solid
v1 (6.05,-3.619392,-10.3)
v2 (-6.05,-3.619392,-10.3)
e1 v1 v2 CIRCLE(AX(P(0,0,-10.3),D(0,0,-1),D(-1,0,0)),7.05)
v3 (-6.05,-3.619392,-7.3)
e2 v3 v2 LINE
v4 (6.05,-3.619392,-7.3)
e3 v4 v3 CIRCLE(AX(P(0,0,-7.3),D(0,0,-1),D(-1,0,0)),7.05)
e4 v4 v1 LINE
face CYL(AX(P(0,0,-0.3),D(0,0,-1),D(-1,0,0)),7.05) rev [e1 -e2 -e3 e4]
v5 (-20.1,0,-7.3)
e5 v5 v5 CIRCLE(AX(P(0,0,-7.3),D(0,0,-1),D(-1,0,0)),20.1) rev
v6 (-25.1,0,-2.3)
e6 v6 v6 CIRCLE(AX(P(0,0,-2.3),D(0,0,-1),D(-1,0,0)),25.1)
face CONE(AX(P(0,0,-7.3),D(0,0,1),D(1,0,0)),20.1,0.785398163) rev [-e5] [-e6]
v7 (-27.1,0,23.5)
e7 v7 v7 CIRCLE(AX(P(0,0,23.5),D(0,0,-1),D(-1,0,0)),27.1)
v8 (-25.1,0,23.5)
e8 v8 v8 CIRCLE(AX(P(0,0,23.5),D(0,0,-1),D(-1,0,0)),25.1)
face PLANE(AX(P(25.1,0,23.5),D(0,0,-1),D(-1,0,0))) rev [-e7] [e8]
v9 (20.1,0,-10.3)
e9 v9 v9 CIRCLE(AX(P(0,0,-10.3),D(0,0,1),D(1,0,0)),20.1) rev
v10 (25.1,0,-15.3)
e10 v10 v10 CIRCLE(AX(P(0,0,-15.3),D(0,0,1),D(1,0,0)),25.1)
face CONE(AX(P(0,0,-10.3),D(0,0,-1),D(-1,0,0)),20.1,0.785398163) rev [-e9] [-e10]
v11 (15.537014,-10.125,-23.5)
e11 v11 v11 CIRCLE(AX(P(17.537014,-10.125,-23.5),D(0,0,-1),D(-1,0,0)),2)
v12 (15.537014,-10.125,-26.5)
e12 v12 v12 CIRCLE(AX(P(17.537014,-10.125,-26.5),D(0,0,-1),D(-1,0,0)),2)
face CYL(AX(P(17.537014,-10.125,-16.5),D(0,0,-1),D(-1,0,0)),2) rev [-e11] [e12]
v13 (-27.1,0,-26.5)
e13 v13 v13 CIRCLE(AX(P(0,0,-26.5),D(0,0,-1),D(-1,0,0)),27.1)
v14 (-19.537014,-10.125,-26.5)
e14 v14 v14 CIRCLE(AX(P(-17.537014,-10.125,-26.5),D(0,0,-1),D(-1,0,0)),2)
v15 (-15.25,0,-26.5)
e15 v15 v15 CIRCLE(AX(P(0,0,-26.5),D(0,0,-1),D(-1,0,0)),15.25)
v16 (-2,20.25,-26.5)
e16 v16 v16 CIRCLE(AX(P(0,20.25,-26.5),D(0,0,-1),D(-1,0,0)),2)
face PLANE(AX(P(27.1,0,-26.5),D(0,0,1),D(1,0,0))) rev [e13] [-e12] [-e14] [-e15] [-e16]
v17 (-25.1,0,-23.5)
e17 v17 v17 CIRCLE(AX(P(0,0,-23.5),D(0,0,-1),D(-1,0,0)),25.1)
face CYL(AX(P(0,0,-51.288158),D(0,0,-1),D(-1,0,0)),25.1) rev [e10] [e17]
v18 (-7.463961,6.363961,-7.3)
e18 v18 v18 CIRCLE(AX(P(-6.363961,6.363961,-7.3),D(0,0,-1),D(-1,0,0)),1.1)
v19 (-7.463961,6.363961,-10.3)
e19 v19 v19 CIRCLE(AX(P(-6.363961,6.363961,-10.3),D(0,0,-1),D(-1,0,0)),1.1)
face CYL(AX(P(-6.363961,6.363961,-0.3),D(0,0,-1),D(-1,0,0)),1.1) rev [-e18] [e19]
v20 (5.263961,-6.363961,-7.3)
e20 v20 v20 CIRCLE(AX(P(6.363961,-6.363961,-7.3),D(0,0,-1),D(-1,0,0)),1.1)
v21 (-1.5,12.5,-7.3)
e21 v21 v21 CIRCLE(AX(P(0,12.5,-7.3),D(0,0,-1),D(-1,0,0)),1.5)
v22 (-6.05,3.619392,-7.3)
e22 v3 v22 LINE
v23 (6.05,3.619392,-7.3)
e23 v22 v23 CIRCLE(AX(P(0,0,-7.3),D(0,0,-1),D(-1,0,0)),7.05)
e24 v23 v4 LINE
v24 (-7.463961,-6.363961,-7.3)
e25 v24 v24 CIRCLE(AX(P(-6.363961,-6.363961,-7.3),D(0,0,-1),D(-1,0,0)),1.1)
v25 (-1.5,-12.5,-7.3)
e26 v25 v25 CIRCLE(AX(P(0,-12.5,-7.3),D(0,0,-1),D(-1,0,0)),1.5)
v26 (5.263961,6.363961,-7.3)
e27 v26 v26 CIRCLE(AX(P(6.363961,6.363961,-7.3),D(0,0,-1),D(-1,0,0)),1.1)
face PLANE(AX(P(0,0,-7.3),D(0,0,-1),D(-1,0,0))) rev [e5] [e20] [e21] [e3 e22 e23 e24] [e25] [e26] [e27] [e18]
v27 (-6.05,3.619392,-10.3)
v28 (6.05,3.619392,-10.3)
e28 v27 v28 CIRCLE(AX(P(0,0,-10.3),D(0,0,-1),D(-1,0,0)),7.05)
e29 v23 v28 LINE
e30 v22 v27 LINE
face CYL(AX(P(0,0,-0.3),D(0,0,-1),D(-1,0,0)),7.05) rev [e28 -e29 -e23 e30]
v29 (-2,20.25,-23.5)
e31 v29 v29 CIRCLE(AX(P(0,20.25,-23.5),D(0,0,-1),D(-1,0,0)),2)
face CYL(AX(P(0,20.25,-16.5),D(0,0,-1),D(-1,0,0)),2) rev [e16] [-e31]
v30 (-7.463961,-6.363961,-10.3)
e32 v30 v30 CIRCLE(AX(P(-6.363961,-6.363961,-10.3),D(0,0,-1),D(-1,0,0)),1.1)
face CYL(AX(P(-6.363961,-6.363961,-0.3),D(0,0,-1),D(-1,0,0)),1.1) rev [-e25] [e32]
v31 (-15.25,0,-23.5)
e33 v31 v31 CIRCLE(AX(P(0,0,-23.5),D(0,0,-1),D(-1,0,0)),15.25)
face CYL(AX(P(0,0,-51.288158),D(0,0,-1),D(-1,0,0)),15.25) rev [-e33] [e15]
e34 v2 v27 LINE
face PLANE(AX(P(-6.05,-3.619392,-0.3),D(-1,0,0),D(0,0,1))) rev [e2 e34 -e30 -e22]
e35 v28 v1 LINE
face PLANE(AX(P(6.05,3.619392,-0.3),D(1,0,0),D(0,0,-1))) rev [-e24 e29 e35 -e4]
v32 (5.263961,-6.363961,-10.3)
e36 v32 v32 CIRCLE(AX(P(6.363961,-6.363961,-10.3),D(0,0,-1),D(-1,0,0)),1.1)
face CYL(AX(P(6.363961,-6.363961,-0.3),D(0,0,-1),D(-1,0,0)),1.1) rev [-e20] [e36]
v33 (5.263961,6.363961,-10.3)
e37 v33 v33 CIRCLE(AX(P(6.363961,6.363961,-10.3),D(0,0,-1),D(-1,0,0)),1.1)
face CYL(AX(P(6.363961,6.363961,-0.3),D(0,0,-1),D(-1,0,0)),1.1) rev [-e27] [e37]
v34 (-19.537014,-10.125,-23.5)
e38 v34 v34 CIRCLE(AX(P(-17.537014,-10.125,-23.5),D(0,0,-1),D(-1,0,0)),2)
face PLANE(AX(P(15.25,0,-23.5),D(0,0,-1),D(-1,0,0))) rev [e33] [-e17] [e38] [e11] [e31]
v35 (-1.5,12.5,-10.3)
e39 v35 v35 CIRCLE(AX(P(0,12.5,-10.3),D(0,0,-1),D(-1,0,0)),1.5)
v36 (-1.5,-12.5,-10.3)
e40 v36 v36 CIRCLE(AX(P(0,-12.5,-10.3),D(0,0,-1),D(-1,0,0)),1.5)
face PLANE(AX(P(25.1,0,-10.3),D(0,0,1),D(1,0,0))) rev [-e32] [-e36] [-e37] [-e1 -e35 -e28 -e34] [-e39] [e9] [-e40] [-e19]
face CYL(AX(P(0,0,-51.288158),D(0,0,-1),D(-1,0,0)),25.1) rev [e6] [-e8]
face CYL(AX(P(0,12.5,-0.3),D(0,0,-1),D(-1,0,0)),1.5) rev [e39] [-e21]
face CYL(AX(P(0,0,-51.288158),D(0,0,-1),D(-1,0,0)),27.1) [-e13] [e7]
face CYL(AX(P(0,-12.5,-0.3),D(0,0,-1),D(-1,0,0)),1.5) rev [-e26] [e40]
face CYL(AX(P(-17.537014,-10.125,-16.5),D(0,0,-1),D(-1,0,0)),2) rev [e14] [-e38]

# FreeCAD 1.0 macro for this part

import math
import FreeCAD as App
import Part
import Sketcher

V = App.Vector
Q = App.Units.Quantity


def edges_at(feature, points):
    """Names of the edges that pass closest to the given points."""
    edges = feature.Shape.Edges
    near = lambda p: min(range(len(edges)), key=lambda i: edges[i].distToShape(Part.Vertex(*p))[0])
    return sorted({f"Edge{near(p) + 1}" for p in points})

doc = App.newDocument("Part")
body = doc.addObject("PartDesign::Body", "Body")

# Sketch on XZ plane
sketch1 = body.newObject("Sketcher::SketchObject", "Sketch")
sketch1.AttachmentSupport = (doc.getObject("XZ_Plane"), [""])
sketch1.MapMode = "FlatFace"
sketch1.addGeometry([
    Part.LineSegment(V(15.2, -26.5, 0), V(15.2, -23.5, 0)),  # 0
    Part.LineSegment(V(15.2, -23.5, 0), V(25.1, -23.5, 0)),  # 1
    Part.LineSegment(V(25.1, -23.5, 0), V(25.1, 23.5, 0)),  # 2
    Part.LineSegment(V(25.1, 23.5, 0), V(27.1, 23.5, 0)),  # 3
    Part.LineSegment(V(27.1, 23.5, 0), V(27.1, -26.5, 0)),  # 4
    Part.LineSegment(V(27.1, -26.5, 0), V(15.2, -26.5, 0)),  # 5
], False)
sketch1.addConstraint([
    Sketcher.Constraint("Coincident", 0, 2, 1, 1),
    Sketcher.Constraint("Coincident", 1, 2, 2, 1),
    Sketcher.Constraint("Coincident", 2, 2, 3, 1),
    Sketcher.Constraint("Coincident", 3, 2, 4, 1),
    Sketcher.Constraint("Coincident", 4, 2, 5, 1),
    Sketcher.Constraint("Coincident", 5, 2, 0, 1),
    Sketcher.Constraint("Vertical", 0),
    Sketcher.Constraint("Horizontal", 1),
    Sketcher.Constraint("Vertical", 2),
    Sketcher.Constraint("Horizontal", 3),
    Sketcher.Constraint("Vertical", 4),
    Sketcher.Constraint("Horizontal", 5),
    Sketcher.Constraint("DistanceX", 3, 1, 3, 2, Q("2 mm")),
    Sketcher.Constraint("DistanceY", 0, 1, 0, 2, Q("3 mm")),
    Sketcher.Constraint("DistanceY", 2, 1, 2, 2, Q("47 mm")),
    Sketcher.Constraint("DistanceX", 1, 1, 1, 2, Q("9.85 mm")),
    Sketcher.Constraint("DistanceY", 0, 2, -1, 1, Q("23.5 mm")),
    Sketcher.Constraint("DistanceX", -1, 1, 1, 2, Q("25.1 mm")),
])
revolution = body.newObject("PartDesign::Revolution", "Revolution")
revolution.Profile = sketch1
revolution.ReferenceAxis = (sketch1, ["V_Axis"])
revolution.Angle = 360

# Sketch on XY plane
sketch2 = body.newObject("Sketcher::SketchObject", "Sketch001")
sketch2.AttachmentSupport = (doc.getObject("XY_Plane"), [""])
sketch2.MapMode = "FlatFace"
sketch2.AttachmentOffset = App.Placement(V(0, 0, -26.5), App.Rotation())
sketch2.addGeometry([
    Part.Circle(V(0, 20.2, 0), V(0, 0, 1), 2),
    Part.Circle(V(-17.5, -10.1, 0), V(0, 0, 1), 2),
    Part.Circle(V(17.5, -10.1, 0), V(0, 0, 1), 2),
], False)
sketch2.addConstraint([
    Sketcher.Constraint("Equal", 0, 1),
    Sketcher.Constraint("Equal", 1, 2),
    Sketcher.Constraint("Symmetric", 1, 3, 2, 3, -2),
    Sketcher.Constraint("PointOnObject", 0, 3, -2),
    Sketcher.Constraint("Diameter", 0, Q("4 mm")),
    Sketcher.Constraint("DistanceY", -1, 1, 0, 3, Q("20.25 mm")),
    Sketcher.Constraint("DistanceY", 1, 3, -1, 1, Q("10.125 mm")),
    Sketcher.Constraint("DistanceX", 1, 3, 2, 3, Q("35.074029 mm")),
])
pocket1 = body.newObject("PartDesign::Pocket", "Pocket")
pocket1.Profile = sketch2
pocket1.Length = 10
pocket1.Reversed = True

# Sketch on XZ plane
sketch3 = body.newObject("Sketcher::SketchObject", "Sketch002")
sketch3.AttachmentSupport = (doc.getObject("XZ_Plane"), [""])
sketch3.MapMode = "FlatFace"
sketch3.addGeometry([
    Part.LineSegment(V(0, -10.3, 0), V(0, -7.3, 0)),
    Part.LineSegment(V(0, -7.3, 0), V(25.1, -7.3, 0)),
    Part.LineSegment(V(25.1, -7.3, 0), V(25.1, -10.3, 0)),
    Part.LineSegment(V(25.1, -10.3, 0), V(0, -10.3, 0)),
], False)
sketch3.addConstraint([
    Sketcher.Constraint("Coincident", 0, 2, 1, 1),
    Sketcher.Constraint("Coincident", 1, 2, 2, 1),
    Sketcher.Constraint("Coincident", 2, 2, 3, 1),
    Sketcher.Constraint("Coincident", 3, 2, 0, 1),
    Sketcher.Constraint("Vertical", 0),
    Sketcher.Constraint("Horizontal", 1),
    Sketcher.Constraint("Vertical", 2),
    Sketcher.Constraint("Horizontal", 3),
    Sketcher.Constraint("PointOnObject", 0, 2, -2),
    Sketcher.Constraint("DistanceY", 0, 1, 0, 2, Q("3 mm")),
    Sketcher.Constraint("DistanceX", 1, 1, 1, 2, Q("25.1 mm")),
    Sketcher.Constraint("DistanceY", 0, 2, -1, 1, Q("7.3 mm")),
])
revolution2 = body.newObject("PartDesign::Revolution", "Revolution001")
revolution2.Profile = sketch3
revolution2.ReferenceAxis = (sketch3, ["V_Axis"])
revolution2.Angle = 360
doc.recompute()

chamfer = body.newObject("PartDesign::Chamfer", "Chamfer")
chamfer.Base = (revolution2, edges_at(revolution2, [(-25.1, 0, -7.3), (-25.1, 0, -10.3)]))
chamfer.Size = 5

# Sketch on XY plane
sketch4 = body.newObject("Sketcher::SketchObject", "Sketch003")
sketch4.AttachmentSupport = (doc.getObject("XY_Plane"), [""])
sketch4.MapMode = "FlatFace"
sketch4.AttachmentOffset = App.Placement(V(0, 0, -10.3), App.Rotation())
sketch4.addGeometry([
    Part.Circle(V(6.4, 6.4, 0), V(0, 0, 1), 1.1),  # 0
    Part.Circle(V(-6.4, 6.4, 0), V(0, 0, 1), 1.1),  # 1
    Part.Circle(V(-6.4, -6.4, 0), V(0, 0, 1), 1.1),  # 2
    Part.Circle(V(6.4, -6.4, 0), V(0, 0, 1), 1.1),  # 3
    Part.Circle(V(0, 12.5, 0), V(0, 0, 1), 1.5),  # 4
    Part.Circle(V(0, -12.5, 0), V(0, 0, 1), 1.5),  # 5
    Part.LineSegment(V(6, 3.6, 0), V(6, -3.6, 0)),  # 6
    Part.ArcOfCircle(Part.Circle(V(0, 0, 0), V(0, 0, 1), 7), math.radians(-149), math.radians(-31)),  # 7
    Part.LineSegment(V(-6, -3.6, 0), V(-6, 3.6, 0)),  # 8
    Part.ArcOfCircle(Part.Circle(V(0, 0, 0), V(0, 0, 1), 7), math.radians(31), math.radians(149)),  # 9
], False)
sketch4.addConstraint([
    Sketcher.Constraint("Coincident", 6, 2, 7, 2),
    Sketcher.Constraint("Coincident", 7, 1, 8, 1),
    Sketcher.Constraint("Coincident", 8, 2, 9, 2),
    Sketcher.Constraint("Coincident", 9, 1, 6, 1),
    Sketcher.Constraint("Vertical", 6),
    Sketcher.Constraint("Vertical", 8),
    Sketcher.Constraint("Coincident", 7, 3, -1, 1),
    Sketcher.Constraint("Coincident", 9, 3, -1, 1),
    Sketcher.Constraint("Equal", 0, 1),
    Sketcher.Constraint("Equal", 1, 2),
    Sketcher.Constraint("Equal", 2, 3),
    Sketcher.Constraint("Equal", 4, 5),
    Sketcher.Constraint("Equal", 7, 9),
    Sketcher.Constraint("Symmetric", 0, 3, 2, 3, -1, 1),
    Sketcher.Constraint("Symmetric", 1, 3, 3, 3, -1, 1),
    Sketcher.Constraint("Symmetric", 4, 3, 5, 3, -1, 1),
    Sketcher.Constraint("Symmetric", 0, 3, 1, 3, -2),
    Sketcher.Constraint("PointOnObject", 4, 3, -2),
    Sketcher.Constraint("Horizontal", 6, 2, 7, 1),
    Sketcher.Constraint("Diameter", 4, Q("3 mm")),
    Sketcher.Constraint("Diameter", 0, Q("2.2 mm")),
    Sketcher.Constraint("Radius", 7, Q("7.05 mm")),
    Sketcher.Constraint("DistanceY", 5, 3, 4, 3, Q("25 mm")),
    Sketcher.Constraint("DistanceX", -1, 1, 6, 2, Q("6.05 mm")),
    Sketcher.Constraint("DistanceX", -1, 1, 0, 3, Q("6.363961 mm")),
    Sketcher.Constraint("DistanceY", -1, 1, 0, 3, Q("6.363961 mm")),
])
pocket2 = body.newObject("PartDesign::Pocket", "Pocket001")
pocket2.Profile = sketch4
pocket2.Length = 10
pocket2.Reversed = True

doc.recompute()
